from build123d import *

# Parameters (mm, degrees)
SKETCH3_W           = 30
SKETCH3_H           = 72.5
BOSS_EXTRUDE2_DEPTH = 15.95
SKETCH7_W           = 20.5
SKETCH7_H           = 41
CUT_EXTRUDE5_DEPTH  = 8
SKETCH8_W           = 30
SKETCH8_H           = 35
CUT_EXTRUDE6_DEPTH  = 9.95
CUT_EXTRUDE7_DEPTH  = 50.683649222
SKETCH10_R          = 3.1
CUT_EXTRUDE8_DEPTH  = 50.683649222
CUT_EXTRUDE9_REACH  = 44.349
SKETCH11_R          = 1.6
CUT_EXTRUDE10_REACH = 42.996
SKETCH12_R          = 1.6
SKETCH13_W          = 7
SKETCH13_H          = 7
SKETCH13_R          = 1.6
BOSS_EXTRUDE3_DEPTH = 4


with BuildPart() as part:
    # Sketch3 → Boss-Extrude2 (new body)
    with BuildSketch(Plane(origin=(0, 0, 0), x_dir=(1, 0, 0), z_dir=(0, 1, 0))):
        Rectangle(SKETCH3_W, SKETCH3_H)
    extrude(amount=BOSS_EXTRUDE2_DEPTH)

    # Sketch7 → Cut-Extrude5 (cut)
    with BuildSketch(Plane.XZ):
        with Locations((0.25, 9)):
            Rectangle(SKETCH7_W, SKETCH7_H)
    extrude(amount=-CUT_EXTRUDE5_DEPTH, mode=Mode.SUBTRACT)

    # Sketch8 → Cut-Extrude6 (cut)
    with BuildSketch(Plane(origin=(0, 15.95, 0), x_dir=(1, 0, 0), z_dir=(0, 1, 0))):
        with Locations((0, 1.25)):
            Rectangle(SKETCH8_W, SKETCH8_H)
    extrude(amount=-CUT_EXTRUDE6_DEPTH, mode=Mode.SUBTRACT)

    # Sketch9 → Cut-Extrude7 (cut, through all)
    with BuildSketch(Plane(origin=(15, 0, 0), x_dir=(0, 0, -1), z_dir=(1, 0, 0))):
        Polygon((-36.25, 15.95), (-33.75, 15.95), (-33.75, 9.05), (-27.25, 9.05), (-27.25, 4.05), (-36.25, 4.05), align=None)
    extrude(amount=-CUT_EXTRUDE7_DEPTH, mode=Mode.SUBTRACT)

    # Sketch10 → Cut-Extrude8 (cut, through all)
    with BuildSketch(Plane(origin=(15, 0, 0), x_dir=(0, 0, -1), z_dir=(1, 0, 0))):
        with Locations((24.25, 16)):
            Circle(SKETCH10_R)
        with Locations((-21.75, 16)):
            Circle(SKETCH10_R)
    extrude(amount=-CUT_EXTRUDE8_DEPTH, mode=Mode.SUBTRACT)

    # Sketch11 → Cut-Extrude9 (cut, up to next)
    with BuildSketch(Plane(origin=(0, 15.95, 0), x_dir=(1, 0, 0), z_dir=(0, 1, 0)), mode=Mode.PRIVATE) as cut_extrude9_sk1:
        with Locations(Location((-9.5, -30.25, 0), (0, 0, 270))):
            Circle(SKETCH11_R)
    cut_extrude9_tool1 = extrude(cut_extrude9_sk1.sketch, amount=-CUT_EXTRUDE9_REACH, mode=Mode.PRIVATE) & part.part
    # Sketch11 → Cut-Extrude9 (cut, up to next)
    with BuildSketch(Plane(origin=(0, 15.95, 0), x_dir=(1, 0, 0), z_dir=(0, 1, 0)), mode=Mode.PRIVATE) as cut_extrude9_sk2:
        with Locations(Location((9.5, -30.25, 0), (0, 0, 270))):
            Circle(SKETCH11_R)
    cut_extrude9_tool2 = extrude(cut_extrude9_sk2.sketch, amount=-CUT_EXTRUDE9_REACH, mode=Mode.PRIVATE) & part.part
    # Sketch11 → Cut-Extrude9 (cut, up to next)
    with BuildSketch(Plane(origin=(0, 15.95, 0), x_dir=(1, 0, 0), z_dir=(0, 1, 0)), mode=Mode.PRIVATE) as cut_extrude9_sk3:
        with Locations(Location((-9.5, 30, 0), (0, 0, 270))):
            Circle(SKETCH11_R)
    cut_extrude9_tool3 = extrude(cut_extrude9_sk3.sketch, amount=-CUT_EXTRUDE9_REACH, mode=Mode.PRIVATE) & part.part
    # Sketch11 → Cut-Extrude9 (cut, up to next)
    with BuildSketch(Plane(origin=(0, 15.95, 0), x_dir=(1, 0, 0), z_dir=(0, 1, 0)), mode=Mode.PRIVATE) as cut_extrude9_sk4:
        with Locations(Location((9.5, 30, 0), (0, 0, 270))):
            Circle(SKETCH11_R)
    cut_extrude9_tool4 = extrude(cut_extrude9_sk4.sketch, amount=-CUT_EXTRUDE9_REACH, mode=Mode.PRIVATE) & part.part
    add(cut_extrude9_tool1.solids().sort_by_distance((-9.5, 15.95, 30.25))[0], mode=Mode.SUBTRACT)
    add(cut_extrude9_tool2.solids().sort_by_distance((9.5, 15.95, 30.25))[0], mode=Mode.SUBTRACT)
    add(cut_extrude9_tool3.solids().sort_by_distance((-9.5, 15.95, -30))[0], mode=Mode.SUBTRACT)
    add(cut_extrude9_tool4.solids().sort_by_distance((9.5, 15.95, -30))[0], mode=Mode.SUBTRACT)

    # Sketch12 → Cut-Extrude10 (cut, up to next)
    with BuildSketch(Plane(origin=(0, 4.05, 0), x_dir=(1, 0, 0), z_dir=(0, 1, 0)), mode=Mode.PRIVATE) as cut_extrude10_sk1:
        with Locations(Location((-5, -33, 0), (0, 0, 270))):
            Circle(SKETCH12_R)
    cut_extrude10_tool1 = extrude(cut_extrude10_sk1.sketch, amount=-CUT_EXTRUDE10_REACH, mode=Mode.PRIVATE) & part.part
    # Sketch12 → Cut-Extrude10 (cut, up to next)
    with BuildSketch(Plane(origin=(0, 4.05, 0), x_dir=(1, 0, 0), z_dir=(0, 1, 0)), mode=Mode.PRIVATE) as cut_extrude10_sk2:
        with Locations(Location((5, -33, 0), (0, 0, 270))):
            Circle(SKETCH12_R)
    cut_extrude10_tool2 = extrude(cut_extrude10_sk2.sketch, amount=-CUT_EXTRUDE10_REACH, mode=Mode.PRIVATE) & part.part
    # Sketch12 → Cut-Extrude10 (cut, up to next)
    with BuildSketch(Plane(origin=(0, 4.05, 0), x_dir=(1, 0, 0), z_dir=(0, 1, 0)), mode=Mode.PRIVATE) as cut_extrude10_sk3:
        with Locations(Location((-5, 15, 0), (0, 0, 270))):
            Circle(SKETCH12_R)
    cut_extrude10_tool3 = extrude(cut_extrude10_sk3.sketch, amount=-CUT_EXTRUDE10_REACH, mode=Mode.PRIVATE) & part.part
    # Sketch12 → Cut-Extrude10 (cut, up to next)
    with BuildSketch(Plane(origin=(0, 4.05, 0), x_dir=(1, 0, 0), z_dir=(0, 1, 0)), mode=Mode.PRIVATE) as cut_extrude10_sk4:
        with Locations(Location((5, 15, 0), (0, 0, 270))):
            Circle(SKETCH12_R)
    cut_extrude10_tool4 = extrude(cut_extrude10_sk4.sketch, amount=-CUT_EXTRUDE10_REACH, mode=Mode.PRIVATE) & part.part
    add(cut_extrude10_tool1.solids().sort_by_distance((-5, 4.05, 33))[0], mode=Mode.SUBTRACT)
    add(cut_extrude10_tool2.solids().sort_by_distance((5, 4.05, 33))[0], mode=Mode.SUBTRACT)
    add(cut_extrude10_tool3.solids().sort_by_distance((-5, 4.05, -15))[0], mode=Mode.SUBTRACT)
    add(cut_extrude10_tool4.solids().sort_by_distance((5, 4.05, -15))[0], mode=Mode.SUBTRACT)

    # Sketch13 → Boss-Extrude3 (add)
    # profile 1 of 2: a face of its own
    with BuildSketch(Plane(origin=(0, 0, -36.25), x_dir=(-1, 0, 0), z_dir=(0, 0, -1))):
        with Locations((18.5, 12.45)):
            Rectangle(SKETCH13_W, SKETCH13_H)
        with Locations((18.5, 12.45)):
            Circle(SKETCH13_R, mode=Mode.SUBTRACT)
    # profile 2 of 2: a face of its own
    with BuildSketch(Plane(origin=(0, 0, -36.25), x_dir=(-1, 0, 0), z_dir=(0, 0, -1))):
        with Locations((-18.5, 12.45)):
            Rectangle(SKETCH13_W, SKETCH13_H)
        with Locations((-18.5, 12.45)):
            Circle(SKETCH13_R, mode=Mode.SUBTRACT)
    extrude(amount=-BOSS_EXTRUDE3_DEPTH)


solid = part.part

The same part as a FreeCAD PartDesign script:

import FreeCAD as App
import Part
import Sketcher
from FreeCAD import Vector
Q = App.Units.Quantity


def add_polygon(sketch, points):
    """Adds a closed chain of lines whose ends are joined by coincident constraints."""
    first, n = sketch.GeometryCount, len(points)
    for a, b in zip(points, points[1:] + points[:1]):
        sketch.addGeometry(Part.LineSegment(App.Vector(*a, 0), App.Vector(*b, 0)), False)
    for i in range(n):
        sketch.addConstraint(Sketcher.Constraint("Coincident", first + i, 2, first + (i + 1) % n, 1))

doc = App.newDocument("Part")
body = doc.addObject("PartDesign::Body", "Body")

sketch1 = doc.addObject("Sketcher::SketchObject", "Sketch")
body.addObject(sketch1)
sketch1.AttachmentSupport = (doc.XZ_Plane, [""])
sketch1.MapMode = "FlatFace"
add_polygon(sketch1, [(-15, -36.25), (-15, 36.25), (15, 36.25), (15, -36.25)])
sketch1.addConstraint([
    Sketcher.Constraint("Vertical", 0),
    Sketcher.Constraint("Horizontal", 1),
    Sketcher.Constraint("Vertical", 2),
    Sketcher.Constraint("Horizontal", 3),
    Sketcher.Constraint("Symmetric", 0, 2, 2, 2, -1, 1),
    Sketcher.Constraint("DistanceX", 1, 1, 1, 2, Q("30 mm")),
    Sketcher.Constraint("DistanceY", 0, 1, 0, 2, Q("72.5 mm")),
])
pad1 = doc.addObject("PartDesign::Pad", "Pad")
body.addObject(pad1)
pad1.Profile = sketch1
pad1.Length = 15.95
pad1.Reversed = True

sketch2 = doc.addObject("Sketcher::SketchObject", "Sketch001")
body.addObject(sketch2)
sketch2.AttachmentSupport = (doc.XZ_Plane, [""])
sketch2.MapMode = "FlatFace"
add_polygon(sketch2, [(-10, 29.5), (-10, -11.5), (10.5, -11.5), (10.5, 29.5)])
sketch2.addConstraint([
    Sketcher.Constraint("Vertical", 0),
    Sketcher.Constraint("Horizontal", 1),
    Sketcher.Constraint("Vertical", 2),
    Sketcher.Constraint("Horizontal", 3),
    Sketcher.Constraint("DistanceY", 0, 2, 0, 1, Q("41 mm")),
    Sketcher.Constraint("DistanceX", 1, 1, 1, 2, Q("20.5 mm")),
    Sketcher.Constraint("DistanceX", 0, 2, -1, 1, Q("10 mm")),
    Sketcher.Constraint("DistanceY", 0, 2, -1, 1, Q("11.5 mm")),
])
pocket1 = doc.addObject("PartDesign::Pocket", "Pocket")
body.addObject(pocket1)
pocket1.Profile = sketch2
pocket1.Length = 8

sketch3 = doc.addObject("Sketcher::SketchObject", "Sketch002")
body.addObject(sketch3)
sketch3.AttachmentSupport = (doc.XZ_Plane, [""])
sketch3.MapMode = "FlatFace"
sketch3.AttachmentOffset = App.Placement(Vector(0, 0, -15.95), App.Rotation())
add_polygon(sketch3, [(-15, -18.75), (-15, 16.25), (15, 16.25), (15, -18.75)])
sketch3.addConstraint([
    Sketcher.Constraint("Vertical", 0),
    Sketcher.Constraint("Horizontal", 1),
    Sketcher.Constraint("Vertical", 2),
    Sketcher.Constraint("Horizontal", 3),
    Sketcher.Constraint("DistanceX", 1, 1, 1, 2, Q("30 mm")),
    Sketcher.Constraint("DistanceY", 0, 1, 0, 2, Q("35 mm")),
    Sketcher.Constraint("DistanceX", 0, 2, -1, 1, Q("15 mm")),
    Sketcher.Constraint("DistanceY", -1, 1, 0, 2, Q("16.25 mm")),
])
pocket2 = doc.addObject("PartDesign::Pocket", "Pocket001")
body.addObject(pocket2)
pocket2.Profile = sketch3
pocket2.Length = 9.95
pocket2.Reversed = True

sketch4 = doc.addObject("Sketcher::SketchObject", "Sketch003")
body.addObject(sketch4)
sketch4.AttachmentSupport = (doc.YZ_Plane, [""])
sketch4.MapMode = "FlatFace"
sketch4.AttachmentOffset = App.Placement(Vector(0, 0, 15), App.Rotation())
add_polygon(sketch4, [(15.95, 33.75), (15.95, 36.25), (4.05, 36.25), (4.05, 27.25), (9.05, 27.25), (9.05, 33.75)])
sketch4.addConstraint([
    Sketcher.Constraint("Vertical", 0),
    Sketcher.Constraint("Horizontal", 1),
    Sketcher.Constraint("Vertical", 2),
    Sketcher.Constraint("Horizontal", 3),
    Sketcher.Constraint("Vertical", 4),
    Sketcher.Constraint("Horizontal", 5),
    Sketcher.Constraint("DistanceX", 3, 1, 3, 2, Q("5 mm")),
    Sketcher.Constraint("DistanceY", 2, 2, 2, 1, Q("9 mm")),
    Sketcher.Constraint("DistanceX", 1, 2, 1, 1, Q("11.9 mm")),
    Sketcher.Constraint("DistanceY", 0, 1, 0, 2, Q("2.5 mm")),
    Sketcher.Constraint("DistanceX", -1, 1, 0, 2, Q("15.95 mm")),
    Sketcher.Constraint("DistanceY", -1, 1, 0, 2, Q("36.25 mm")),
])
pocket3 = doc.addObject("PartDesign::Pocket", "Pocket002")
body.addObject(pocket3)
pocket3.Profile = sketch4
pocket3.Type = "ThroughAll"

sketch5 = doc.addObject("Sketcher::SketchObject", "Sketch004")
body.addObject(sketch5)
sketch5.AttachmentSupport = (doc.YZ_Plane, [""])
sketch5.MapMode = "FlatFace"
sketch5.AttachmentOffset = App.Placement(Vector(0, 0, 15), App.Rotation())
sketch5.addGeometry([
    Part.Circle(Vector(16, -24.25, 0), Vector(0, 0, 1), 3.1),
    Part.Circle(Vector(16, 21.75, 0), Vector(0, 0, 1), 3.1),
], False)
sketch5.addConstraint([
    Sketcher.Constraint("Equal", 0, 1),
    Sketcher.Constraint("Vertical", 0, 3, 1, 3),
    Sketcher.Constraint("Diameter", 0, Q("6.2 mm")),
    Sketcher.Constraint("DistanceX", -1, 1, 0, 3, Q("16 mm")),
    Sketcher.Constraint("DistanceY", 0, 3, 1, 3, Q("46 mm")),
    Sketcher.Constraint("DistanceY", 0, 3, -1, 1, Q("24.25 mm")),
])
pocket4 = doc.addObject("PartDesign::Pocket", "Pocket003")
body.addObject(pocket4)
pocket4.Profile = sketch5
pocket4.Type = "ThroughAll"

sketch6 = doc.addObject("Sketcher::SketchObject", "Sketch005")
body.addObject(sketch6)
sketch6.AttachmentSupport = (doc.XZ_Plane, [""])
sketch6.MapMode = "FlatFace"
sketch6.AttachmentOffset = App.Placement(Vector(0, 0, -15.95), App.Rotation())
sketch6.addGeometry(Part.Circle(Vector(-9.5, 30.25, 0), Vector(0, 0, 1), 1.6), False)
sketch6.addConstraint([
    Sketcher.Constraint("Diameter", 0, Q("3.2 mm")),
    Sketcher.Constraint("DistanceX", 0, 3, -1, 1, Q("9.5 mm")),
    Sketcher.Constraint("DistanceY", -1, 1, 0, 3, Q("30.25 mm")),
])
pocket5 = doc.addObject("PartDesign::Pocket", "Pocket004")
body.addObject(pocket5)
pocket5.Profile = sketch6
pocket5.Type = "UpToFirst"
pocket5.Reversed = True

sketch7 = doc.addObject("Sketcher::SketchObject", "Sketch006")
body.addObject(sketch7)
sketch7.AttachmentSupport = (doc.XZ_Plane, [""])
sketch7.MapMode = "FlatFace"
sketch7.AttachmentOffset = App.Placement(Vector(0, 0, -15.95), App.Rotation())
sketch7.addGeometry(Part.Circle(Vector(9.5, 30.25, 0), Vector(0, 0, 1), 1.6), False)
sketch7.addConstraint([
    Sketcher.Constraint("Diameter", 0, Q("3.2 mm")),
    Sketcher.Constraint("DistanceX", -1, 1, 0, 3, Q("9.5 mm")),
    Sketcher.Constraint("DistanceY", -1, 1, 0, 3, Q("30.25 mm")),
])
pocket6 = doc.addObject("PartDesign::Pocket", "Pocket005")
body.addObject(pocket6)
pocket6.Profile = sketch7
pocket6.Type = "UpToFirst"
pocket6.Reversed = True

sketch8 = doc.addObject("Sketcher::SketchObject", "Sketch007")
body.addObject(sketch8)
sketch8.AttachmentSupport = (doc.XZ_Plane, [""])
sketch8.MapMode = "FlatFace"
sketch8.AttachmentOffset = App.Placement(Vector(0, 0, -15.95), App.Rotation())
sketch8.addGeometry(Part.Circle(Vector(-9.5, -30, 0), Vector(0, 0, 1), 1.6), False)
sketch8.addConstraint([
    Sketcher.Constraint("Diameter", 0, Q("3.2 mm")),
    Sketcher.Constraint("DistanceY", 0, 3, -1, 1, Q("30 mm")),
    Sketcher.Constraint("DistanceX", 0, 3, -1, 1, Q("9.5 mm")),
])
pocket7 = doc.addObject("PartDesign::Pocket", "Pocket006")
body.addObject(pocket7)
pocket7.Profile = sketch8
pocket7.Type = "UpToFirst"
pocket7.Reversed = True

sketch9 = doc.addObject("Sketcher::SketchObject", "Sketch008")
body.addObject(sketch9)
sketch9.AttachmentSupport = (doc.XZ_Plane, [""])
sketch9.MapMode = "FlatFace"
sketch9.AttachmentOffset = App.Placement(Vector(0, 0, -15.95), App.Rotation())
sketch9.addGeometry(Part.Circle(Vector(9.5, -30, 0), Vector(0, 0, 1), 1.6), False)
sketch9.addConstraint([
    Sketcher.Constraint("Diameter", 0, Q("3.2 mm")),
    Sketcher.Constraint("DistanceY", 0, 3, -1, 1, Q("30 mm")),
    Sketcher.Constraint("DistanceX", -1, 1, 0, 3, Q("9.5 mm")),
])
pocket8 = doc.addObject("PartDesign::Pocket", "Pocket007")
body.addObject(pocket8)
pocket8.Profile = sketch9
pocket8.Type = "UpToFirst"
pocket8.Reversed = True

sketch10 = doc.addObject("Sketcher::SketchObject", "Sketch009")
body.addObject(sketch10)
sketch10.AttachmentSupport = (doc.XZ_Plane, [""])
sketch10.MapMode = "FlatFace"
sketch10.AttachmentOffset = App.Placement(Vector(0, 0, -4.05), App.Rotation())
sketch10.addGeometry(Part.Circle(Vector(-5, 33, 0), Vector(0, 0, 1), 1.6), False)
sketch10.addConstraint([
    Sketcher.Constraint("Diameter", 0, Q("3.2 mm")),
    Sketcher.Constraint("DistanceX", 0, 3, -1, 1, Q("5 mm")),
    Sketcher.Constraint("DistanceY", -1, 1, 0, 3, Q("33 mm")),
])
pocket9 = doc.addObject("PartDesign::Pocket", "Pocket008")
body.addObject(pocket9)
pocket9.Profile = sketch10
pocket9.Type = "UpToFirst"
pocket9.Reversed = True

sketch11 = doc.addObject("Sketcher::SketchObject", "Sketch010")
body.addObject(sketch11)
sketch11.AttachmentSupport = (doc.XZ_Plane, [""])
sketch11.MapMode = "FlatFace"
sketch11.AttachmentOffset = App.Placement(Vector(0, 0, -4.05), App.Rotation())
sketch11.addGeometry(Part.Circle(Vector(5, 33, 0), Vector(0, 0, 1), 1.6), False)
sketch11.addConstraint([
    Sketcher.Constraint("Diameter", 0, Q("3.2 mm")),
    Sketcher.Constraint("DistanceX", -1, 1, 0, 3, Q("5 mm")),
    Sketcher.Constraint("DistanceY", -1, 1, 0, 3, Q("33 mm")),
])
pocket10 = doc.addObject("PartDesign::Pocket", "Pocket009")
body.addObject(pocket10)
pocket10.Profile = sketch11
pocket10.Type = "UpToFirst"
pocket10.Reversed = True

sketch12 = doc.addObject("Sketcher::SketchObject", "Sketch011")
body.addObject(sketch12)
sketch12.AttachmentSupport = (doc.XZ_Plane, [""])
sketch12.MapMode = "FlatFace"
sketch12.AttachmentOffset = App.Placement(Vector(0, 0, -4.05), App.Rotation())
sketch12.addGeometry(Part.Circle(Vector(-5, -15, 0), Vector(0, 0, 1), 1.6), False)
sketch12.addConstraint([
    Sketcher.Constraint("Diameter", 0, Q("3.2 mm")),
    Sketcher.Constraint("DistanceX", 0, 3, -1, 1, Q("5 mm")),
    Sketcher.Constraint("DistanceY", 0, 3, -1, 1, Q("15 mm")),
])
pocket11 = doc.addObject("PartDesign::Pocket", "Pocket010")
body.addObject(pocket11)
pocket11.Profile = sketch12
pocket11.Type = "UpToFirst"
pocket11.Reversed = True

sketch13 = doc.addObject("Sketcher::SketchObject", "Sketch012")
body.addObject(sketch13)
sketch13.AttachmentSupport = (doc.XZ_Plane, [""])
sketch13.MapMode = "FlatFace"
sketch13.AttachmentOffset = App.Placement(Vector(0, 0, -4.05), App.Rotation())
sketch13.addGeometry(Part.Circle(Vector(5, -15, 0), Vector(0, 0, 1), 1.6), False)
sketch13.addConstraint([
    Sketcher.Constraint("Diameter", 0, Q("3.2 mm")),
    Sketcher.Constraint("DistanceX", -1, 1, 0, 3, Q("5 mm")),
    Sketcher.Constraint("DistanceY", 0, 3, -1, 1, Q("15 mm")),
])
pocket12 = doc.addObject("PartDesign::Pocket", "Pocket011")
body.addObject(pocket12)
pocket12.Profile = sketch13
pocket12.Type = "UpToFirst"
pocket12.Reversed = True

sketch14 = doc.addObject("Sketcher::SketchObject", "Sketch013")
body.addObject(sketch14)
sketch14.AttachmentSupport = (doc.XY_Plane, [""])
sketch14.MapMode = "FlatFace"
sketch14.AttachmentOffset = App.Placement(Vector(0, 0, -36.25), App.Rotation())
add_polygon(sketch14, [(-15, 15.95), (-15, 8.95), (-22, 8.95), (-22, 15.95)])
sketch14.addGeometry(Part.Circle(Vector(-18.5, 12.45, 0), Vector(0, 0, 1), 1.6), False)
add_polygon(sketch14, [(22, 15.95), (22, 8.95), (15, 8.95), (15, 15.95)])
sketch14.addGeometry(Part.Circle(Vector(18.5, 12.45, 0), Vector(0, 0, 1), 1.6), False)
sketch14.addConstraint([
    Sketcher.Constraint("Vertical", 0),
    Sketcher.Constraint("Horizontal", 1),
    Sketcher.Constraint("Vertical", 2),
    Sketcher.Constraint("Horizontal", 3),
    Sketcher.Constraint("Vertical", 5),
    Sketcher.Constraint("Horizontal", 6),
    Sketcher.Constraint("Vertical", 7),
    Sketcher.Constraint("Horizontal", 8),
    Sketcher.Constraint("Equal", 4, 9),
    Sketcher.Constraint("Symmetric", 4, 3, 9, 3, -2),
    Sketcher.Constraint("Symmetric", 1, 2, 5, 2, -2),
    Sketcher.Constraint("Symmetric", 3, 2, 7, 2, -2),
    Sketcher.Constraint("Equal", 8, 0),
    Sketcher.Constraint("Diameter", 4, Q("3.2 mm")),
    Sketcher.Constraint("DistanceX", 1, 2, 1, 1, Q("7 mm")),
    Sketcher.Constraint("DistanceX", 0, 2, -1, 1, Q("15 mm")),
    Sketcher.Constraint("DistanceX", 4, 3, 9, 3, Q("37 mm")),
    Sketcher.Constraint("DistanceY", 0, 2, 4, 3, Q("3.5 mm")),
    Sketcher.Constraint("DistanceY", -1, 1, 4, 3, Q("12.45 mm")),
])
pad2 = doc.addObject("PartDesign::Pad", "Pad001")
body.addObject(pad2)
pad2.Profile = sketch14
pad2.Length = 4

doc.recompute()
